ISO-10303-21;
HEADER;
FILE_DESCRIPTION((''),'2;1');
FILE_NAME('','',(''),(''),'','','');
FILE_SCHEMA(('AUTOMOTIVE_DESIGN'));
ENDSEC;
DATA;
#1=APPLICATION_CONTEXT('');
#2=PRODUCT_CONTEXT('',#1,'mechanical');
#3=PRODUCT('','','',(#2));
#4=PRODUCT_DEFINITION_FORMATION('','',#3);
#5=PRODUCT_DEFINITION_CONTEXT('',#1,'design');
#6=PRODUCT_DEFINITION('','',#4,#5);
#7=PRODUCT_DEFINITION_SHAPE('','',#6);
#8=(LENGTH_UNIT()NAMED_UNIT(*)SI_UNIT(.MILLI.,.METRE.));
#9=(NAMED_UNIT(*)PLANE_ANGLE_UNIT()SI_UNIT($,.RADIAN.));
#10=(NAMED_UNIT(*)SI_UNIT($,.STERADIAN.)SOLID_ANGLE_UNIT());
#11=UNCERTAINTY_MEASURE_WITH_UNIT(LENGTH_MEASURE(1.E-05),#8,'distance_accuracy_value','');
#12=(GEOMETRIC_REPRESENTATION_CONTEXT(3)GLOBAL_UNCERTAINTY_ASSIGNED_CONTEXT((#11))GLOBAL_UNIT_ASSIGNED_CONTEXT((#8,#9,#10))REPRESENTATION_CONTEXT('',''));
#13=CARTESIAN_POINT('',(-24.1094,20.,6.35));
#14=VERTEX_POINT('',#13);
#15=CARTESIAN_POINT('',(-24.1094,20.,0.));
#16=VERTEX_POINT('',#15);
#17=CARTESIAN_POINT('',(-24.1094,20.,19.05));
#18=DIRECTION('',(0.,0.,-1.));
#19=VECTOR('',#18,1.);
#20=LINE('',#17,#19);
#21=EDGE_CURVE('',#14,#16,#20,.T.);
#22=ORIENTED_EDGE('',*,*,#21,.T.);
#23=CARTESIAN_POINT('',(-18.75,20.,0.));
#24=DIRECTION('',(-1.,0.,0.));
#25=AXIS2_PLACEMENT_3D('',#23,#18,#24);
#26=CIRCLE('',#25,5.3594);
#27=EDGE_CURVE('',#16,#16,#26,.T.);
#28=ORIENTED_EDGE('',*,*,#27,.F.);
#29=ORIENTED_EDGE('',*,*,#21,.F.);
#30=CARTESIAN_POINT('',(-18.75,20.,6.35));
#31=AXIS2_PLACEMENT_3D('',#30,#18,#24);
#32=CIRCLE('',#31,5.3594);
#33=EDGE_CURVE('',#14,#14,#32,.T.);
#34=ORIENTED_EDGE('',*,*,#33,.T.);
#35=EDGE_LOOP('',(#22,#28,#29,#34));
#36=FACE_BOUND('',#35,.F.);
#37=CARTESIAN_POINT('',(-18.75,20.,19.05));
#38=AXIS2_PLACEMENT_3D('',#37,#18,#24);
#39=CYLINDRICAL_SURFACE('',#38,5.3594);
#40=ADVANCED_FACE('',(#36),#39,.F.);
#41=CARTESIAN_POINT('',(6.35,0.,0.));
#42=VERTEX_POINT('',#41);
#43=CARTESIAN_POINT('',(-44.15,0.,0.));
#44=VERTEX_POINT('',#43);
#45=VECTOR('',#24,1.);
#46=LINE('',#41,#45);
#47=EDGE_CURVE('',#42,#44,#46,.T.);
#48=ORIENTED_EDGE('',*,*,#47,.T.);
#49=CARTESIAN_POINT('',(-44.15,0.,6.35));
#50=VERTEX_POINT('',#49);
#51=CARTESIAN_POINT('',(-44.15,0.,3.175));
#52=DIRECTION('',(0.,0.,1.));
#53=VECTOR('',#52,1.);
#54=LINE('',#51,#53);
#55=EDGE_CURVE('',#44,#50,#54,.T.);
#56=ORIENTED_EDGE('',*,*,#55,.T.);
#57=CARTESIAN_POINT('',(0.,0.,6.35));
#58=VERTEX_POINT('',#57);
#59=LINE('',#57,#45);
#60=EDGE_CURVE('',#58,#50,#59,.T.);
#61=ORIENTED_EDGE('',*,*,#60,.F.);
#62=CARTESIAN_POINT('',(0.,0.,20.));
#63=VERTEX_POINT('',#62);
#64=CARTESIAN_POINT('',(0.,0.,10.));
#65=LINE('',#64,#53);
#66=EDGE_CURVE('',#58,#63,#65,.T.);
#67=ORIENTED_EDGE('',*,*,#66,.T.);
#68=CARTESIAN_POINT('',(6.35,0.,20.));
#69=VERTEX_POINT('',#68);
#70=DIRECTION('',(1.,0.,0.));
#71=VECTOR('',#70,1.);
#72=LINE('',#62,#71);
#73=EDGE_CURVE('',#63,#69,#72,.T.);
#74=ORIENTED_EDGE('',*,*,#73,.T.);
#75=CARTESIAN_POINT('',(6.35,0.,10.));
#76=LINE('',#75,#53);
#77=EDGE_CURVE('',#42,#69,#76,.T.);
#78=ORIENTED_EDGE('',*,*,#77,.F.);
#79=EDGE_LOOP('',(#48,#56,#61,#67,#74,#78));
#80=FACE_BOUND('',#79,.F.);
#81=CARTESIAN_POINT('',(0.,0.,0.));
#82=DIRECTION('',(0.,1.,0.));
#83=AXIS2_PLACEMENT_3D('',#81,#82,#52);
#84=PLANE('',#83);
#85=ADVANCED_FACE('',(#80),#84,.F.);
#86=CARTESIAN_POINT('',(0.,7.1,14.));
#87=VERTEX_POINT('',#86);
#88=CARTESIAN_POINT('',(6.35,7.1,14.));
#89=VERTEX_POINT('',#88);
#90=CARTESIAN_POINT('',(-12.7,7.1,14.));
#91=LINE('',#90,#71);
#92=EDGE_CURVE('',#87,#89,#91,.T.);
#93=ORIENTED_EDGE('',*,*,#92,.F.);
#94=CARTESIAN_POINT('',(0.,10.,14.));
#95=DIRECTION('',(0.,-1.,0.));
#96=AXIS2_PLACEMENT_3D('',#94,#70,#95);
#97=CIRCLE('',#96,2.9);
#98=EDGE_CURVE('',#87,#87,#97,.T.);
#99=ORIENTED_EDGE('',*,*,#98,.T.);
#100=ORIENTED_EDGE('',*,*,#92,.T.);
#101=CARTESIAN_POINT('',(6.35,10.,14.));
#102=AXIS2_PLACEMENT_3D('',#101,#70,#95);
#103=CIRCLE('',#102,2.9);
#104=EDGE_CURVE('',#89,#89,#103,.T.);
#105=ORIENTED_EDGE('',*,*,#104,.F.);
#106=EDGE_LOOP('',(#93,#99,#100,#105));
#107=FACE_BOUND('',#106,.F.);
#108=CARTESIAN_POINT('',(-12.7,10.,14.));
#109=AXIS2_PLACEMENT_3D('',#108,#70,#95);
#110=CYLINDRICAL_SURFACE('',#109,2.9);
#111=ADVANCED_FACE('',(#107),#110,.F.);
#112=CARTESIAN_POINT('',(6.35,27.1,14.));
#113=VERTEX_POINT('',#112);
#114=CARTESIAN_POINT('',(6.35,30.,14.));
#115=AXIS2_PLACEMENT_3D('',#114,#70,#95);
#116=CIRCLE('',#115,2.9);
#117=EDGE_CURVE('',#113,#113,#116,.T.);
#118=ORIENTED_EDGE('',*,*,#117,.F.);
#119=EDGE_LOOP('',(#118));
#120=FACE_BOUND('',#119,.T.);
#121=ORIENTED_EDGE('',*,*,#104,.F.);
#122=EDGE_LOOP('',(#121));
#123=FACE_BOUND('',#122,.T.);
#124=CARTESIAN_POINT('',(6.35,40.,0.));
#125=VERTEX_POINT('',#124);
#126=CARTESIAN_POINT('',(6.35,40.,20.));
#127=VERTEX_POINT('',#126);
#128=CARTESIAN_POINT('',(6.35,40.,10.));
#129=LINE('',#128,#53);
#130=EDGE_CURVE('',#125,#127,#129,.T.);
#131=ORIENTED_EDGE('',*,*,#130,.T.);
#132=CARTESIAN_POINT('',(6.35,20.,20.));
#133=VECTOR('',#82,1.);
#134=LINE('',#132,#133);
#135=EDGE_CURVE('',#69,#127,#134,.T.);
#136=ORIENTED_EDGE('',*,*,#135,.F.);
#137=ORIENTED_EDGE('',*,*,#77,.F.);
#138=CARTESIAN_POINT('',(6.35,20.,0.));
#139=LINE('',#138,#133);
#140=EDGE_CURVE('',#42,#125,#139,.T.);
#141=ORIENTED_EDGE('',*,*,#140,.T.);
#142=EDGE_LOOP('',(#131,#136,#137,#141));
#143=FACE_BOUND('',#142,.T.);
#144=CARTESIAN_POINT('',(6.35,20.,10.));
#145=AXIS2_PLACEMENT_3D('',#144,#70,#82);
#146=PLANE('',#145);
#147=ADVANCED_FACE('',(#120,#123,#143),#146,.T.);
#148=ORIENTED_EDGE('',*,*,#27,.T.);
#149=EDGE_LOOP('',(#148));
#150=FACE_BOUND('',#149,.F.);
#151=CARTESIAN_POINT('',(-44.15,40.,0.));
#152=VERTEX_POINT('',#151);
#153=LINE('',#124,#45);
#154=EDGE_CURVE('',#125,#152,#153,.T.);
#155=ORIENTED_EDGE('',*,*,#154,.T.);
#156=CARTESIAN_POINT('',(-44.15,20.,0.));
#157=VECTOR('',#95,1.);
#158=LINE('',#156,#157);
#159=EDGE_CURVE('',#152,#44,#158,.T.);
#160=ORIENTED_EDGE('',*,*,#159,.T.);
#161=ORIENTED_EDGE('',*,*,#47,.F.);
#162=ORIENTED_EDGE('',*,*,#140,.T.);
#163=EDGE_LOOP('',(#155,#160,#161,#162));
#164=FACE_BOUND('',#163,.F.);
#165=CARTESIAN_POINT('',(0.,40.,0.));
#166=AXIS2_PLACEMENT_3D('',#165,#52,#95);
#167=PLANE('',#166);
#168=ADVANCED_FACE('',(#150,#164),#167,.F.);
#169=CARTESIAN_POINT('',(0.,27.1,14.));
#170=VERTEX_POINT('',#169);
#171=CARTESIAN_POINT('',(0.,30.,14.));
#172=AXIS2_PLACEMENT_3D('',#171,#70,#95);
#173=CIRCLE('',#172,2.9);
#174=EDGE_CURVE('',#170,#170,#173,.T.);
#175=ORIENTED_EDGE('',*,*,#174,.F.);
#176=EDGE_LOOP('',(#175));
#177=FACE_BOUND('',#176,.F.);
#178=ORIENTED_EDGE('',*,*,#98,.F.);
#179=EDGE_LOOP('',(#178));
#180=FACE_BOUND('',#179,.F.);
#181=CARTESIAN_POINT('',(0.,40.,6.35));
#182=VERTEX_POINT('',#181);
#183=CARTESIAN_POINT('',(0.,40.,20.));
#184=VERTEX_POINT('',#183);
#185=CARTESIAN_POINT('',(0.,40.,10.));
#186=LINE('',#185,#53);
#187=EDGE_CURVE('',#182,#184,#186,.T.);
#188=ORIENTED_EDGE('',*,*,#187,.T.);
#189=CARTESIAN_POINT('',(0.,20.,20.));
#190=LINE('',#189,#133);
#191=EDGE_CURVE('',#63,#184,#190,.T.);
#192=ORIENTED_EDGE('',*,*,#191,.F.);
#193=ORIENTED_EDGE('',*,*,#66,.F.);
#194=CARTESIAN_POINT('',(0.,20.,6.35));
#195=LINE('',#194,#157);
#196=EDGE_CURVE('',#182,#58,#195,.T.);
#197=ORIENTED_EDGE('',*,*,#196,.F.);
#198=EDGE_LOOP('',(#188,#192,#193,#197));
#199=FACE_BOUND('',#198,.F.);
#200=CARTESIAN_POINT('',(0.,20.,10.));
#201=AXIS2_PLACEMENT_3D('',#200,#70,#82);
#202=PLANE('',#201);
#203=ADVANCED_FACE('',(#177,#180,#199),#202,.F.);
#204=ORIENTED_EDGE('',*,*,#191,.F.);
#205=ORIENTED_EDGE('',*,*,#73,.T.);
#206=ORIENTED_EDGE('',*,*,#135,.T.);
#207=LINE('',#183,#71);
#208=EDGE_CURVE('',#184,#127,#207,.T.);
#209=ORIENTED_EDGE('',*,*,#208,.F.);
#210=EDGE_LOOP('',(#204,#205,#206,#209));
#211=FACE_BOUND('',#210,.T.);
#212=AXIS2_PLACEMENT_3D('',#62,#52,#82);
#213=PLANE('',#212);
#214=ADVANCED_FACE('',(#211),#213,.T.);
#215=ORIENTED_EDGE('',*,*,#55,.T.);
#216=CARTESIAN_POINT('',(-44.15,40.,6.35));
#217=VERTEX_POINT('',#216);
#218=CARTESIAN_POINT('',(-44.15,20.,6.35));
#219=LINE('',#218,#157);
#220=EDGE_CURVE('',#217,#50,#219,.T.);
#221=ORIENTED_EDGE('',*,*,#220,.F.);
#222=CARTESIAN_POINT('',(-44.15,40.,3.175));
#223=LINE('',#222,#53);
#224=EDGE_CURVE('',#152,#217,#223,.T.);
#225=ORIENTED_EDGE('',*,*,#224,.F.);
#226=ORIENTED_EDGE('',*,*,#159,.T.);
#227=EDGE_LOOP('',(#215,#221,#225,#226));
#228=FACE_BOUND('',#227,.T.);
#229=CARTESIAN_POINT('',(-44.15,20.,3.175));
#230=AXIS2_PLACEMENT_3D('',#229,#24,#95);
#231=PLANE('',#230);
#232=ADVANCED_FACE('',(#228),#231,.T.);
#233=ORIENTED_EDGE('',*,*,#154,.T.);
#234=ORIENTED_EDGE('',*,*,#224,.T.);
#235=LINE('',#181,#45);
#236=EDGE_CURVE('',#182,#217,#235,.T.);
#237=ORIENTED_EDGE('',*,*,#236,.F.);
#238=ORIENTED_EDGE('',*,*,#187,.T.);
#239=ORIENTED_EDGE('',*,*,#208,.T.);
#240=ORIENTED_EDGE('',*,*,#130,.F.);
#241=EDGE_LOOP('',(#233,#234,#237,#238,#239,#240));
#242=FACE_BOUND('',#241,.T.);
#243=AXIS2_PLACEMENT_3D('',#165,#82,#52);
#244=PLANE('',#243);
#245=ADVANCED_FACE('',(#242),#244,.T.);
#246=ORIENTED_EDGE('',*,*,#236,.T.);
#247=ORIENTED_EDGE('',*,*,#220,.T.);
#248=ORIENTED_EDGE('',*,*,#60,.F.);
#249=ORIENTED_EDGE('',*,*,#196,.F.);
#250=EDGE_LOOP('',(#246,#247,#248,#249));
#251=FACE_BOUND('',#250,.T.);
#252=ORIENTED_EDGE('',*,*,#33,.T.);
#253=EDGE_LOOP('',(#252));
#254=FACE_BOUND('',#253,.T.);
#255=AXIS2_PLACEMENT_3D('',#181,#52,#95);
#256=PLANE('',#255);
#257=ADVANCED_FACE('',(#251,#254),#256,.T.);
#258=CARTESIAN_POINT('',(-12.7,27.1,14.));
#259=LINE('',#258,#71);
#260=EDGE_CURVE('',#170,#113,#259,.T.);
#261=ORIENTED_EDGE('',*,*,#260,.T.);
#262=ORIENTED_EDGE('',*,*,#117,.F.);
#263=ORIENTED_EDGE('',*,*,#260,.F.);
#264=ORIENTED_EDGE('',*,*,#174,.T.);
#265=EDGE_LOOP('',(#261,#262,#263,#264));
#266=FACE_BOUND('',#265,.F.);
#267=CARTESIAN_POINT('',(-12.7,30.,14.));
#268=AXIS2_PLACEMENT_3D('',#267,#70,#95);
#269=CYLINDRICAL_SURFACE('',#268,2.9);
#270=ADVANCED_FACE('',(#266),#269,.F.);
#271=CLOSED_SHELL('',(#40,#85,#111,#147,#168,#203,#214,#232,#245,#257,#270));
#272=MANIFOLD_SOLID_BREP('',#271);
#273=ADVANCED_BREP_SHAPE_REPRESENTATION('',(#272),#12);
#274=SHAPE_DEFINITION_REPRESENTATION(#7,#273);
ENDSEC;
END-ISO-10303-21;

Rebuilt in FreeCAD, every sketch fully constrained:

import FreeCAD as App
import Part
import Sketcher

V = App.Vector

doc = App.newDocument("Part")
body = doc.addObject("PartDesign::Body", "Body")

# Sketch on YZ plane
sketch1 = body.newObject("Sketcher::SketchObject", "Sketch")
sketch1.AttachmentSupport = (doc.getObject("YZ_Plane"), [""])
sketch1.MapMode = "FlatFace"
sketch1.addGeometry(Part.LineSegment(V(0, 20, 0), V(0, 0, 0)), False)
sketch1.addGeometry(Part.LineSegment(V(0, 0, 0), V(40, 0, 0)), False)
sketch1.addGeometry(Part.LineSegment(V(40, 0, 0), V(40, 20, 0)), False)
sketch1.addGeometry(Part.LineSegment(V(40, 20, 0), V(0, 20, 0)), False)
sketch1.addConstraint(Sketcher.Constraint("Coincident", 0, 2, 1, 1))
sketch1.addConstraint(Sketcher.Constraint("Coincident", 1, 2, 2, 1))
sketch1.addConstraint(Sketcher.Constraint("Coincident", 2, 2, 3, 1))
sketch1.addConstraint(Sketcher.Constraint("Coincident", 3, 2, 0, 1))
sketch1.addConstraint(Sketcher.Constraint("Vertical", 0))
sketch1.addConstraint(Sketcher.Constraint("Horizontal", 1))
sketch1.addConstraint(Sketcher.Constraint("Vertical", 2))
sketch1.addConstraint(Sketcher.Constraint("Horizontal", 3))
sketch1.addConstraint(Sketcher.Constraint("Coincident", 0, 2, -1, 1))
sketch1.addConstraint(Sketcher.Constraint("DistanceX", 1, 1, 1, 2, 40.0))
sketch1.addConstraint(Sketcher.Constraint("DistanceY", 0, 2, 0, 1, 20.0))
pad1 = body.newObject("PartDesign::Pad", "Pad")
pad1.Profile = sketch1
pad1.Length = 6.35

# Sketch on YZ plane
sketch2 = body.newObject("Sketcher::SketchObject", "Sketch001")
sketch2.AttachmentSupport = (doc.getObject("YZ_Plane"), [""])
sketch2.MapMode = "FlatFace"
sketch2.addGeometry(Part.LineSegment(V(40, 6.35, 0), V(40, 0, 0)), False)
sketch2.addGeometry(Part.LineSegment(V(40, 0, 0), V(0, 0, 0)), False)
sketch2.addGeometry(Part.LineSegment(V(0, 0, 0), V(0, 6.35, 0)), False)
sketch2.addGeometry(Part.LineSegment(V(0, 6.35, 0), V(40, 6.35, 0)), False)
sketch2.addConstraint(Sketcher.Constraint("Coincident", 0, 2, 1, 1))
sketch2.addConstraint(Sketcher.Constraint("Coincident", 1, 2, 2, 1))
sketch2.addConstraint(Sketcher.Constraint("Coincident", 2, 2, 3, 1))
sketch2.addConstraint(Sketcher.Constraint("Coincident", 3, 2, 0, 1))
sketch2.addConstraint(Sketcher.Constraint("Vertical", 0))
sketch2.addConstraint(Sketcher.Constraint("Horizontal", 1))
sketch2.addConstraint(Sketcher.Constraint("Vertical", 2))
sketch2.addConstraint(Sketcher.Constraint("Horizontal", 3))
sketch2.addConstraint(Sketcher.Constraint("Coincident", 1, 2, -1, 1))
sketch2.addConstraint(Sketcher.Constraint("DistanceX", 1, 2, 1, 1, 40.0))
sketch2.addConstraint(Sketcher.Constraint("DistanceY", 0, 2, 0, 1, 6.35))
pad2 = body.newObject("PartDesign::Pad", "Pad001")
pad2.Profile = sketch2
pad2.Length = 44.15
pad2.Reversed = True

# Sketch on XY plane
sketch3 = body.newObject("Sketcher::SketchObject", "Sketch002")
sketch3.AttachmentSupport = (doc.getObject("XY_Plane"), [""])
sketch3.MapMode = "FlatFace"
sketch3.AttachmentOffset = App.Placement(V(0, 0, 6.35), App.Rotation())
sketch3.addGeometry(Part.Circle(V(-18.75, 20, 0), V(0, 0, 1), 5.3594), False)
sketch3.addConstraint(Sketcher.Constraint("DistanceY", -1, 1, 0, 3, 20.0))
sketch3.addConstraint(Sketcher.Constraint("Diameter", 0, 10.7188))
sketch3.addConstraint(Sketcher.Constraint("DistanceX", 0, 3, -1, 1, 18.75))
doc.recompute()
hole = body.newObject("PartDesign::Hole", "Hole")
hole.Profile = sketch3
hole.ThreadType = "None"
hole.Diameter = 10.7188
hole.DepthType = "Dimension"
hole.Depth = 12.7
hole.DrillPoint = "Angled"
hole.DrillPointAngle = 118

# Sketch on YZ plane
sketch4 = body.newObject("Sketcher::SketchObject", "Sketch003")
sketch4.AttachmentSupport = (doc.getObject("YZ_Plane"), [""])
sketch4.MapMode = "FlatFace"
sketch4.addGeometry(Part.Circle(V(30, 14, 0), V(0, 0, 1), 2.9), False)
sketch4.addGeometry(Part.Circle(V(10, 14, 0), V(0, 0, 1), 2.9), False)
sketch4.addConstraint(Sketcher.Constraint("Equal", 0, 1))
sketch4.addConstraint(Sketcher.Constraint("Horizontal", 0, 3, 1, 3))
sketch4.addConstraint(Sketcher.Constraint("Diameter", 0, 5.8))
sketch4.addConstraint(Sketcher.Constraint("DistanceX", -1, 1, 0, 3, 30.0))
sketch4.addConstraint(Sketcher.Constraint("DistanceY", -1, 1, 0, 3, 14.0))
sketch4.addConstraint(Sketcher.Constraint("DistanceX", -1, 1, 1, 3, 10.0))
doc.recompute()
hole2 = body.newObject("PartDesign::Hole", "Hole001")
hole2.Profile = sketch4
hole2.ThreadType = "None"
hole2.Diameter = 5.8
hole2.DepthType = "Dimension"
hole2.Depth = 12.7
hole2.DrillPoint = "Angled"
hole2.DrillPointAngle = 118
hole2.Reversed = True

doc.recompute()
